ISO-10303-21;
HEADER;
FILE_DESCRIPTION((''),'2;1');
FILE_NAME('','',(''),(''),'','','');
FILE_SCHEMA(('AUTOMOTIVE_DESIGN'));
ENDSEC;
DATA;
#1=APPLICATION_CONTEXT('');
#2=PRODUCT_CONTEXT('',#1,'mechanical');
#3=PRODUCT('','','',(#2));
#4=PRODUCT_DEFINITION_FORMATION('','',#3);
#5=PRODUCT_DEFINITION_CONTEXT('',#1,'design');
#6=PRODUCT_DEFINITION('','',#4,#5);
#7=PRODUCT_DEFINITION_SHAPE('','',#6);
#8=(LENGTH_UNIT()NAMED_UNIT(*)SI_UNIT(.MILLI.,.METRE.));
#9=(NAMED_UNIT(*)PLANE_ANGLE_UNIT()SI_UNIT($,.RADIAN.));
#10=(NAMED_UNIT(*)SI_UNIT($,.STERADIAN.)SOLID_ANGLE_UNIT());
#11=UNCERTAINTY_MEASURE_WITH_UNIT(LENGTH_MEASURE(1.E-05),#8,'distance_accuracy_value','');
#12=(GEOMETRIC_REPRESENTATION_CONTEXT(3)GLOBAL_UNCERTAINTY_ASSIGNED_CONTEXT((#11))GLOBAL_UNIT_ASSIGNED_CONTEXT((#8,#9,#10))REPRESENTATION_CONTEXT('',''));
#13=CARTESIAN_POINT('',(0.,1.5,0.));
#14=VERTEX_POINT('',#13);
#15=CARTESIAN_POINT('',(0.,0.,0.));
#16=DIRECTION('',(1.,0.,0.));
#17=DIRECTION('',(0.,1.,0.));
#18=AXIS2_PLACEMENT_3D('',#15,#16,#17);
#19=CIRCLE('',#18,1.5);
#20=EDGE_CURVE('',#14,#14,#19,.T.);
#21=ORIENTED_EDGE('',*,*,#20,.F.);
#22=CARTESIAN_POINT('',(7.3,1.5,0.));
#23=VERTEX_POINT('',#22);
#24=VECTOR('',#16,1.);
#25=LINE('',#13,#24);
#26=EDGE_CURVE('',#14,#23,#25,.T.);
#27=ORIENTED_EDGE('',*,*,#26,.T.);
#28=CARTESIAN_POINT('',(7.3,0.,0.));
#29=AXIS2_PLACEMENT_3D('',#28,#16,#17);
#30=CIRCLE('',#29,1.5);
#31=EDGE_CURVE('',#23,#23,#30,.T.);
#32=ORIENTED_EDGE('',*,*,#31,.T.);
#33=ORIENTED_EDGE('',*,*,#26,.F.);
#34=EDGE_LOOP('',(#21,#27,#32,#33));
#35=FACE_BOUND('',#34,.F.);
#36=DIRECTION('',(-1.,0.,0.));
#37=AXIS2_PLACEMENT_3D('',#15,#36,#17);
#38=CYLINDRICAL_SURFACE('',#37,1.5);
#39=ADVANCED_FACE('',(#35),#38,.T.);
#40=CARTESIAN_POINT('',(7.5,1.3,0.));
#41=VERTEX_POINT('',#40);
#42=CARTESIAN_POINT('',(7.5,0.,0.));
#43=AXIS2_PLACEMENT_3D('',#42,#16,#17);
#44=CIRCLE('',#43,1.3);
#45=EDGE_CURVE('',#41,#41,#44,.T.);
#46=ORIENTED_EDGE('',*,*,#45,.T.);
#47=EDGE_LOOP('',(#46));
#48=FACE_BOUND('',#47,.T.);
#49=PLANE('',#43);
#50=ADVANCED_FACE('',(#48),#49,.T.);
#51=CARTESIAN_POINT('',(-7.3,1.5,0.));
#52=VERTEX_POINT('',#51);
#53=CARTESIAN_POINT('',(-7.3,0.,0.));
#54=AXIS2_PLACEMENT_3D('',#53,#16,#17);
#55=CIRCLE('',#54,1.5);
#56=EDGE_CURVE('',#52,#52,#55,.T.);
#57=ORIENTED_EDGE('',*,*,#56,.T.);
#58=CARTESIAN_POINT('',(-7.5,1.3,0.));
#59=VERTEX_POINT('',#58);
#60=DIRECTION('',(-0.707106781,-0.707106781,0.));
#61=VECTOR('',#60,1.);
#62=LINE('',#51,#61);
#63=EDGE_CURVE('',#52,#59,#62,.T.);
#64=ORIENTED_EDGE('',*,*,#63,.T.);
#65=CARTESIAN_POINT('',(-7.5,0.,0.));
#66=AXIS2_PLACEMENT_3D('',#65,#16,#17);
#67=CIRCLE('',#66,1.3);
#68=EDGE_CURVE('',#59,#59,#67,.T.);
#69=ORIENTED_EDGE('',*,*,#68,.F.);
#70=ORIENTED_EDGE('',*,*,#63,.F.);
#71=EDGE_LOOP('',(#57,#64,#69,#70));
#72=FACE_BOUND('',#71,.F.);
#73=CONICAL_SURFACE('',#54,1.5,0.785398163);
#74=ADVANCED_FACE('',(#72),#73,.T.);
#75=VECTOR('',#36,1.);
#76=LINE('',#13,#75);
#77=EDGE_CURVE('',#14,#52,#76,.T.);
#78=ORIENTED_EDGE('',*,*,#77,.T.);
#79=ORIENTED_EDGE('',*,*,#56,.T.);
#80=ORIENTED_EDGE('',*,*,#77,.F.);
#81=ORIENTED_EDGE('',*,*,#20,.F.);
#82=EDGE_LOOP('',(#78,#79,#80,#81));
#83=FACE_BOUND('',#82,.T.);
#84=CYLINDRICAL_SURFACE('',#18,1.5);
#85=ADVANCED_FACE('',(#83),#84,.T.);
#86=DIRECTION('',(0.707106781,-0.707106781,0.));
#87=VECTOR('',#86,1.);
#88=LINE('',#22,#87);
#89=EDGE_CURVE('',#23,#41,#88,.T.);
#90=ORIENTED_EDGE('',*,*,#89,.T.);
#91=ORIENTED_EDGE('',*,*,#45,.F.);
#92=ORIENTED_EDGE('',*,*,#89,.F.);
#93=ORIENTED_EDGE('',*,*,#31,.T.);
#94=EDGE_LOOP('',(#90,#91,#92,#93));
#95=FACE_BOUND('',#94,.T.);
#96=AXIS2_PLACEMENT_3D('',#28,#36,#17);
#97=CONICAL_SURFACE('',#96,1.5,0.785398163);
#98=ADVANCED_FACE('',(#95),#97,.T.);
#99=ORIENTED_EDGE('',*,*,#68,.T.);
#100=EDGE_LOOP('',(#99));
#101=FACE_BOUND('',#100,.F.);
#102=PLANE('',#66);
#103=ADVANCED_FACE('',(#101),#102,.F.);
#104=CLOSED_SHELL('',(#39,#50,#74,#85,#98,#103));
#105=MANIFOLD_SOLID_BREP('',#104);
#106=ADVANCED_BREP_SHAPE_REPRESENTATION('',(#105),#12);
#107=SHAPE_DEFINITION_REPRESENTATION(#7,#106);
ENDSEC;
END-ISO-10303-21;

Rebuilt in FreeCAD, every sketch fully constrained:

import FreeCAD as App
import Part
import Sketcher
from FreeCAD import Vector


def edges_at(feature, points):
    """Names of the edges that pass closest to the given points."""
    edges = feature.Shape.Edges
    near = lambda p: min(range(len(edges)), key=lambda i: edges[i].distToShape(Part.Vertex(*p))[0])
    return sorted({f"Edge{near(p) + 1}" for p in points})

doc = App.newDocument("Part")
params = doc.addObject("Spreadsheet::Sheet", "Params")
for row, (alias, value) in enumerate([
    ("sketch1_diameter", "3 mm"),
    ("pad1_length", "15 mm"),
    ("chamfer_size", "0.2 mm"),
], start=1):
    params.set(f"A{row}", alias)
    params.set(f"B{row}", "=" + value)
    params.setAlias(f"B{row}", alias)

body = doc.addObject("PartDesign::Body", "Body")

# Sketch on YZ plane
sketch1 = doc.addObject("Sketcher::SketchObject", "Sketch")
body.addObject(sketch1)
sketch1.AttachmentSupport = (doc.YZ_Plane, [""])
sketch1.MapMode = "FlatFace"
sketch1.addGeometry(Part.Circle(Vector(0, 0, 0), Vector(0, 0, 1), 1.5), False)
sketch1.addConstraint(Sketcher.Constraint("Coincident", 0, 3, -1, 1))
sketch1.addConstraint(Sketcher.Constraint("Diameter", 0, 3.0))
sketch1.setExpression("Constraints[1]", "Params.sketch1_diameter")
pad1 = doc.addObject("PartDesign::Pad", "Pad")
body.addObject(pad1)
pad1.Profile = sketch1
pad1.setExpression("Length", "Params.pad1_length")
pad1.Midplane = True
doc.recompute()

chamfer = doc.addObject("PartDesign::Chamfer", "Chamfer")
body.addObject(chamfer)
chamfer.Base = (pad1, edges_at(pad1, [(7.5, -1.5, 0), (-7.5, -1.5, 0)]))
chamfer.setExpression("Size", "Params.chamfer_size")

doc.recompute()
